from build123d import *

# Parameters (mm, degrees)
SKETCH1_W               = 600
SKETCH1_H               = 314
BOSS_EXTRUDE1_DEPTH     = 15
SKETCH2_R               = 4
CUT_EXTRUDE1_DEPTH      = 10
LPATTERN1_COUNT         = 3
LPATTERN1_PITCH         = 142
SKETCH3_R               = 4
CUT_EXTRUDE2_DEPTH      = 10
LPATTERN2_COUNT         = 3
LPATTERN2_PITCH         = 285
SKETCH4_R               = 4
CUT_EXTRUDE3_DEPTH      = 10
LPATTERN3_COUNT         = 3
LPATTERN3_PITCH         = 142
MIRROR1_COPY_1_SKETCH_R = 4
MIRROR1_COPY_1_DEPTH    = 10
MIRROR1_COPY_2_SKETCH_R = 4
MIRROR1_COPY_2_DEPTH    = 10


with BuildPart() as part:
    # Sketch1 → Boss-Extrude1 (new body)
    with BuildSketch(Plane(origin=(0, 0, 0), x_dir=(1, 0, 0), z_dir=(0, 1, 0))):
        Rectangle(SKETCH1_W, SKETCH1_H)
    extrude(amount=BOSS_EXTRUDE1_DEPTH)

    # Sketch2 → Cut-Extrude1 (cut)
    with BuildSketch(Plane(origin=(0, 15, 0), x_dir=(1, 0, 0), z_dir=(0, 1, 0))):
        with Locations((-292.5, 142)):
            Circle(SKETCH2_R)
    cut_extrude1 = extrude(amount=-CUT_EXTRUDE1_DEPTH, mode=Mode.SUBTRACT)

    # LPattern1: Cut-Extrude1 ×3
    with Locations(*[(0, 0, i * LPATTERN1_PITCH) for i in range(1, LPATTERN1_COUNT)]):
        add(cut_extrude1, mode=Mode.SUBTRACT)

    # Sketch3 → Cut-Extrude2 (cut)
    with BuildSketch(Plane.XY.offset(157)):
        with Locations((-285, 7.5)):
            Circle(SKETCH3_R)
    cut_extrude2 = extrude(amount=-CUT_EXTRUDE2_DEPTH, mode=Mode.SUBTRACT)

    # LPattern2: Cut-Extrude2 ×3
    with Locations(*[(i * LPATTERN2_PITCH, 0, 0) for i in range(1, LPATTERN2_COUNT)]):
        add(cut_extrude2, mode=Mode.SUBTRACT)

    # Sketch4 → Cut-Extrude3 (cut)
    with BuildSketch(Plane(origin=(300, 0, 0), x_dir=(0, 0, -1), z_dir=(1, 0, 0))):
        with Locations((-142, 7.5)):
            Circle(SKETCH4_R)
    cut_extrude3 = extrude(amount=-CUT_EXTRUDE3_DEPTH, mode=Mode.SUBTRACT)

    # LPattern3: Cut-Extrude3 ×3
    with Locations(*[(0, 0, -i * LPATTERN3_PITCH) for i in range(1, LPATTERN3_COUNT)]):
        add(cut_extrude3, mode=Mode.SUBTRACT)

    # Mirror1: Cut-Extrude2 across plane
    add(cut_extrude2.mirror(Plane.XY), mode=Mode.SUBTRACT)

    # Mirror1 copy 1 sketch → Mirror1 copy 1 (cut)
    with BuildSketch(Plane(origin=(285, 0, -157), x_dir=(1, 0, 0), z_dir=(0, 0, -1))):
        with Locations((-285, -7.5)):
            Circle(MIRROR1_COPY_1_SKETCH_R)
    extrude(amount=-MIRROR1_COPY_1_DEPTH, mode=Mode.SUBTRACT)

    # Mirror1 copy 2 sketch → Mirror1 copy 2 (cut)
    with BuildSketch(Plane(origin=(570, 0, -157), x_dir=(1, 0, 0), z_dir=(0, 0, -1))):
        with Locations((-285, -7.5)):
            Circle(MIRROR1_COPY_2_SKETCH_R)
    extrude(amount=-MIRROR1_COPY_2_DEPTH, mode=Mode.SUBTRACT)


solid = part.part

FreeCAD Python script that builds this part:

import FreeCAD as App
import Part
import Sketcher
Q = App.Units.Quantity

doc = App.newDocument("Part")
body = doc.addObject("PartDesign::Body", "Body")

# Sketch on XZ plane
sketch1 = body.newObject("Sketcher::SketchObject", "Sketch")
sketch1.AttachmentSupport = (doc.getObject("XZ_Plane"), [""])
sketch1.MapMode = "FlatFace"
sketch1.addGeometry([
    Part.LineSegment(App.Vector(-300, -157, 0), App.Vector(-300, 157, 0)),
    Part.LineSegment(App.Vector(-300, 157, 0), App.Vector(300, 157, 0)),
    Part.LineSegment(App.Vector(300, 157, 0), App.Vector(300, -157, 0)),
    Part.LineSegment(App.Vector(300, -157, 0), App.Vector(-300, -157, 0)),
], False)
sketch1.addConstraint([
    Sketcher.Constraint("Coincident", 0, 2, 1, 1),
    Sketcher.Constraint("Coincident", 1, 2, 2, 1),
    Sketcher.Constraint("Coincident", 2, 2, 3, 1),
    Sketcher.Constraint("Coincident", 3, 2, 0, 1),
    Sketcher.Constraint("Vertical", 0),
    Sketcher.Constraint("Horizontal", 1),
    Sketcher.Constraint("Vertical", 2),
    Sketcher.Constraint("Horizontal", 3),
    Sketcher.Constraint("Symmetric", 0, 2, 2, 2, -1, 1),
    Sketcher.Constraint("DistanceX", 1, 1, 1, 2, Q("600 mm")),
    Sketcher.Constraint("DistanceY", 0, 1, 0, 2, Q("314 mm")),
])
pad1 = body.newObject("PartDesign::Pad", "Pad")
pad1.Profile = sketch1
pad1.Length = 15
pad1.Reversed = True

# Sketch on XZ plane
sketch2 = body.newObject("Sketcher::SketchObject", "Sketch001")
sketch2.AttachmentSupport = (doc.getObject("XZ_Plane"), [""])
sketch2.MapMode = "FlatFace"
sketch2.AttachmentOffset = App.Placement(App.Vector(0, 0, -15), App.Rotation())
sketch2.addGeometry(Part.Circle(App.Vector(-292.5, -142, 0), App.Vector(0, 0, 1), 4), False)
sketch2.addConstraint([
    Sketcher.Constraint("Diameter", 0, Q("8 mm")),
    Sketcher.Constraint("DistanceY", 0, 3, -1, 1, Q("142 mm")),
    Sketcher.Constraint("DistanceX", 0, 3, -1, 1, Q("292.5 mm")),
])
pocket1 = body.newObject("PartDesign::Pocket", "Pocket")
pocket1.Profile = sketch2
pocket1.Length = 10
pocket1.Reversed = True
doc.recompute()

linearpattern = body.newObject("PartDesign::LinearPattern", "LinearPattern")
linearpattern.Originals = [pocket1]
linearpattern.Direction = (doc.getObject("Z_Axis"), [""])
linearpattern.Mode = "offset"
linearpattern.Offset = 142
linearpattern.Occurrences = 3
body.Tip = linearpattern

# Sketch on XY plane
sketch3 = body.newObject("Sketcher::SketchObject", "Sketch002")
sketch3.AttachmentSupport = (doc.getObject("XY_Plane"), [""])
sketch3.MapMode = "FlatFace"
sketch3.AttachmentOffset = App.Placement(App.Vector(0, 0, 157), App.Rotation())
sketch3.addGeometry(Part.Circle(App.Vector(-285, 7.5, 0), App.Vector(0, 0, 1), 4), False)
sketch3.addConstraint([
    Sketcher.Constraint("Diameter", 0, Q("8 mm")),
    Sketcher.Constraint("DistanceX", 0, 3, -1, 1, Q("285 mm")),
    Sketcher.Constraint("DistanceY", -1, 1, 0, 3, Q("7.5 mm")),
])
pocket2 = body.newObject("PartDesign::Pocket", "Pocket001")
pocket2.Profile = sketch3
pocket2.Length = 10
doc.recompute()

linearpattern2 = body.newObject("PartDesign::LinearPattern", "LinearPattern001")
linearpattern2.Originals = [pocket2]
linearpattern2.Direction = (doc.getObject("X_Axis"), [""])
linearpattern2.Mode = "offset"
linearpattern2.Offset = 285
linearpattern2.Occurrences = 3
body.Tip = linearpattern2

# Sketch on YZ plane
sketch4 = body.newObject("Sketcher::SketchObject", "Sketch003")
sketch4.AttachmentSupport = (doc.getObject("YZ_Plane"), [""])
sketch4.MapMode = "FlatFace"
sketch4.AttachmentOffset = App.Placement(App.Vector(0, 0, 300), App.Rotation())
sketch4.addGeometry(Part.Circle(App.Vector(7.5, 142, 0), App.Vector(0, 0, 1), 4), False)
sketch4.addConstraint([
    Sketcher.Constraint("Diameter", 0, Q("8 mm")),
    Sketcher.Constraint("DistanceY", -1, 1, 0, 3, Q("142 mm")),
    Sketcher.Constraint("DistanceX", -1, 1, 0, 3, Q("7.5 mm")),
])
pocket3 = body.newObject("PartDesign::Pocket", "Pocket002")
pocket3.Profile = sketch4
pocket3.Length = 10
doc.recompute()

linearpattern3 = body.newObject("PartDesign::LinearPattern", "LinearPattern002")
linearpattern3.Originals = [pocket3]
linearpattern3.Direction = (doc.getObject("Z_Axis"), [""])
linearpattern3.Mode = "offset"
linearpattern3.Offset = 142
linearpattern3.Occurrences = 3
linearpattern3.Reversed = True
body.Tip = linearpattern3
doc.recompute()

mirrored = body.newObject("PartDesign::Mirrored", "Mirrored")
mirrored.Originals = [pocket2]
mirrored.MirrorPlane = (doc.getObject("XY_Plane"), [""])
body.Tip = mirrored

# Sketch on XY plane
sketch5 = body.newObject("Sketcher::SketchObject", "Sketch004")
sketch5.AttachmentSupport = (doc.getObject("XY_Plane"), [""])
sketch5.MapMode = "FlatFace"
sketch5.AttachmentOffset = App.Placement(App.Vector(0, 0, -157), App.Rotation())
sketch5.addGeometry(Part.Circle(App.Vector(0, 7.5, 0), App.Vector(0, 0, 1), 4), False)
sketch5.addConstraint([
    Sketcher.Constraint("PointOnObject", 0, 3, -2),
    Sketcher.Constraint("Diameter", 0, Q("8 mm")),
    Sketcher.Constraint("DistanceY", -1, 1, 0, 3, Q("7.5 mm")),
])
pocket4 = body.newObject("PartDesign::Pocket", "Pocket003")
pocket4.Profile = sketch5
pocket4.Length = 10
pocket4.Reversed = True

# Sketch on XY plane
sketch6 = body.newObject("Sketcher::SketchObject", "Sketch005")
sketch6.AttachmentSupport = (doc.getObject("XY_Plane"), [""])
sketch6.MapMode = "FlatFace"
sketch6.AttachmentOffset = App.Placement(App.Vector(0, 0, -157), App.Rotation())
sketch6.addGeometry(Part.Circle(App.Vector(285, 7.5, 0), App.Vector(0, 0, 1), 4), False)
sketch6.addConstraint([
    Sketcher.Constraint("Diameter", 0, Q("8 mm")),
    Sketcher.Constraint("DistanceX", -1, 1, 0, 3, Q("285 mm")),
    Sketcher.Constraint("DistanceY", -1, 1, 0, 3, Q("7.5 mm")),
])
pocket5 = body.newObject("PartDesign::Pocket", "Pocket004")
pocket5.Profile = sketch6
pocket5.Length = 10
pocket5.Reversed = True

doc.recompute()
